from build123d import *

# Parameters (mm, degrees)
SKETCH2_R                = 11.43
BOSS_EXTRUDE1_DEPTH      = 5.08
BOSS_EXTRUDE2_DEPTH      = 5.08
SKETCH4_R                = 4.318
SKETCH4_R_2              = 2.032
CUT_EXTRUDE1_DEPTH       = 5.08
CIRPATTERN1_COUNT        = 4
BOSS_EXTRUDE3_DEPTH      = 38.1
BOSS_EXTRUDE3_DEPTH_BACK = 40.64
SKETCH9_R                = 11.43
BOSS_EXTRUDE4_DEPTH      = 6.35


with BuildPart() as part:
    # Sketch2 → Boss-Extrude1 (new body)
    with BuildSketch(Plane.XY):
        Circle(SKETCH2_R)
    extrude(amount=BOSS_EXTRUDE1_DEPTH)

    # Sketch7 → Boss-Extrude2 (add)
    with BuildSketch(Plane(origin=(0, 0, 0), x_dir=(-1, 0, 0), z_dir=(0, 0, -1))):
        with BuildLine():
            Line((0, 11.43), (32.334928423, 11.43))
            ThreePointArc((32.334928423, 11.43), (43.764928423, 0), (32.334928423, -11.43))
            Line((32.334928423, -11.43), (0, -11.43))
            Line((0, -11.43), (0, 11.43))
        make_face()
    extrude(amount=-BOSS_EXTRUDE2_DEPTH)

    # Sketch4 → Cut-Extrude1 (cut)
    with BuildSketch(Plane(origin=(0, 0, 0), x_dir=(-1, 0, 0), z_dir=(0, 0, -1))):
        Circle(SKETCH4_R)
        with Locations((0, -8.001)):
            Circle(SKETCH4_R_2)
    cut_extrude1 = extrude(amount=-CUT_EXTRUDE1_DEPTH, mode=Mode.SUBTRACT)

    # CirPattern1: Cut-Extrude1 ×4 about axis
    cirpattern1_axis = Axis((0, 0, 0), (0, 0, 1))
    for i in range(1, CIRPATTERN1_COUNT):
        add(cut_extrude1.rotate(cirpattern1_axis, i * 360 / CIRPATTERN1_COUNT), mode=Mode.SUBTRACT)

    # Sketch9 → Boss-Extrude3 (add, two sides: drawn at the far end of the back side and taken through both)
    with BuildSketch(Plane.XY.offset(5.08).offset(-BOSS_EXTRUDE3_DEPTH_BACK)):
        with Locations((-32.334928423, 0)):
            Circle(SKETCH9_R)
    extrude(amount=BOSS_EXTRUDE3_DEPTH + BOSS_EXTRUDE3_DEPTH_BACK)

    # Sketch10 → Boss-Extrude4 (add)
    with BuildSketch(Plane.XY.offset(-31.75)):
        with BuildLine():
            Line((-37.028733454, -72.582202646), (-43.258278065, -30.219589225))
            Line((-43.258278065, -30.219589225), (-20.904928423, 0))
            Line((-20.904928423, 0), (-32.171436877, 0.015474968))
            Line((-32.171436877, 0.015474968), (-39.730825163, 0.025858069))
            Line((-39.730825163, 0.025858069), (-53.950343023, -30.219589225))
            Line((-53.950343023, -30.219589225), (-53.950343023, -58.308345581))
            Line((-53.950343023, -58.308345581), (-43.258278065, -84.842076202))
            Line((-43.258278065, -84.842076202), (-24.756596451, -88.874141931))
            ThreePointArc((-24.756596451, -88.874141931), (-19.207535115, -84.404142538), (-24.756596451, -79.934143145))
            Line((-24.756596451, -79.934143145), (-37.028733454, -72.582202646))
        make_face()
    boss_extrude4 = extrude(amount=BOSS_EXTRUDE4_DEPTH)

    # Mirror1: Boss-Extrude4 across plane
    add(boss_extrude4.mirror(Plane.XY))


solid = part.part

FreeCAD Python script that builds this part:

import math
import FreeCAD as App
import Part
import Sketcher
Q = App.Units.Quantity

doc = App.newDocument("Part")
body = doc.addObject("PartDesign::Body", "Body")

sketch1 = body.newObject("Sketcher::SketchObject", "Sketch")
sketch1.AttachmentSupport = (doc.getObject("XY_Plane"), [""])
sketch1.MapMode = "FlatFace"
sketch1.addGeometry(Part.Circle(App.Vector(0, 0, 0), App.Vector(0, 0, 1), 11.43), False)
sketch1.addConstraint([
    Sketcher.Constraint("Coincident", 0, 3, -1, 1),
    Sketcher.Constraint("Diameter", 0, Q("0.9 in")),
])
pad1 = body.newObject("PartDesign::Pad", "Pad")
pad1.Profile = sketch1
pad1.Length = Q("0.2 in")

sketch2 = body.newObject("Sketcher::SketchObject", "Sketch001")
sketch2.AttachmentSupport = (doc.getObject("XY_Plane"), [""])
sketch2.MapMode = "FlatFace"
sketch2.addGeometry([
    Part.LineSegment(App.Vector(-32.334928, 11.43, 0), App.Vector(0, 11.43, 0)),
    Part.LineSegment(App.Vector(0, 11.43, 0), App.Vector(0, -11.43, 0)),
    Part.LineSegment(App.Vector(0, -11.43, 0), App.Vector(-32.334928, -11.43, 0)),
    Part.ArcOfCircle(Part.Circle(App.Vector(-32.334928, 0, 0), App.Vector(0, 0, 1), 11.43), math.radians(90), math.radians(270)),
], False)
sketch2.addConstraint([
    Sketcher.Constraint("Coincident", 0, 2, 1, 1),
    Sketcher.Constraint("Coincident", 1, 2, 2, 1),
    Sketcher.Constraint("Tangent", 2, 2, 3, 2),
    Sketcher.Constraint("Tangent", 3, 1, 0, 1),
    Sketcher.Constraint("Horizontal", 0),
    Sketcher.Constraint("Vertical", 1),
    Sketcher.Constraint("Horizontal", 2),
    Sketcher.Constraint("Symmetric", 0, 2, 1, 2, -1, 1),
    Sketcher.Constraint("Radius", 3, Q("0.45 in")),
    Sketcher.Constraint("DistanceX", 0, 1, 0, 2, 32.334928),
])
pad2 = body.newObject("PartDesign::Pad", "Pad001")
pad2.Profile = sketch2
pad2.Length = Q("0.2 in")

sketch3 = body.newObject("Sketcher::SketchObject", "Sketch002")
sketch3.AttachmentSupport = (doc.getObject("XY_Plane"), [""])
sketch3.MapMode = "FlatFace"
sketch3.addGeometry([
    Part.Circle(App.Vector(0, 0, 0), App.Vector(0, 0, 1), 4.318),
    Part.Circle(App.Vector(0, -8.001, 0), App.Vector(0, 0, 1), 2.032),
], False)
sketch3.addConstraint([
    Sketcher.Constraint("Coincident", 0, 3, -1, 1),
    Sketcher.Constraint("PointOnObject", 1, 3, -2),
    Sketcher.Constraint("Diameter", 0, Q("0.34 in")),
    Sketcher.Constraint("Diameter", 1, Q("0.16 in")),
    Sketcher.Constraint("DistanceY", 1, 3, -1, 1, Q("0.315 in")),
])
pocket1 = body.newObject("PartDesign::Pocket", "Pocket")
pocket1.Profile = sketch3
pocket1.Length = Q("0.2 in")
pocket1.Reversed = True
doc.recompute()

polarpattern = body.newObject("PartDesign::PolarPattern", "PolarPattern")
polarpattern.Originals = [pocket1]
polarpattern.Axis = (doc.getObject("Z_Axis"), [""])
polarpattern.Angle = 360
polarpattern.Occurrences = 4
body.Tip = polarpattern

sketch4 = body.newObject("Sketcher::SketchObject", "Sketch003")
sketch4.AttachmentSupport = (doc.getObject("XY_Plane"), [""])
sketch4.MapMode = "FlatFace"
sketch4.AttachmentOffset = App.Placement(App.Vector(0, 0, 0.2 * 25.4), App.Rotation())
sketch4.addGeometry(Part.Circle(App.Vector(-32.334928, 0, 0), App.Vector(0, 0, 1), 11.43), False)
sketch4.addConstraint([
    Sketcher.Constraint("PointOnObject", 0, 3, -1),
    Sketcher.Constraint("Diameter", 0, Q("0.9 in")),
    Sketcher.Constraint("DistanceX", 0, 3, -1, 1, 32.334928),
])
pad3 = body.newObject("PartDesign::Pad", "Pad002")
pad3.Profile = sketch4
pad3.Type = "TwoLengths"
pad3.Length = Q("1.5 in")
pad3.Length2 = Q("1.6 in")

sketch5 = body.newObject("Sketcher::SketchObject", "Sketch004")
sketch5.AttachmentSupport = (doc.getObject("XY_Plane"), [""])
sketch5.MapMode = "FlatFace"
sketch5.AttachmentOffset = App.Placement(App.Vector(0, 0, -1.25 * 25.4), App.Rotation())
sketch5.addGeometry([
    Part.LineSegment(App.Vector(-37.028733, -72.582203, 0), App.Vector(-43.258278, -30.219589, 0)),
    Part.LineSegment(App.Vector(-43.258278, -30.219589, 0), App.Vector(-20.904928, 0, 0)),
    Part.LineSegment(App.Vector(-20.904928, 0, 0), App.Vector(-32.171437, 0.015475, 0)),
    Part.LineSegment(App.Vector(-32.171437, 0.015475, 0), App.Vector(-39.730825, 0.025858, 0)),
    Part.LineSegment(App.Vector(-39.730825, 0.025858, 0), App.Vector(-53.950343, -30.219589, 0)),
    Part.LineSegment(App.Vector(-53.950343, -30.219589, 0), App.Vector(-53.950343, -58.308346, 0)),
    Part.LineSegment(App.Vector(-53.950343, -58.308346, 0), App.Vector(-43.258278, -84.842076, 0)),
    Part.LineSegment(App.Vector(-43.258278, -84.842076, 0), App.Vector(-24.756596, -88.874142, 0)),
    Part.ArcOfCircle(Part.Circle(App.Vector(-23.782451, -84.404143, 0), App.Vector(0, 0, 1), 4.574916), math.radians(-102.294226), math.radians(102.294226)),
    Part.LineSegment(App.Vector(-24.756596, -79.934143, 0), App.Vector(-37.028733, -72.582203, 0)),
], False)
sketch5.addConstraint([
    Sketcher.Constraint("Coincident", 0, 2, 1, 1),
    Sketcher.Constraint("Coincident", 1, 2, 2, 1),
    Sketcher.Constraint("Coincident", 2, 2, 3, 1),
    Sketcher.Constraint("Coincident", 3, 2, 4, 1),
    Sketcher.Constraint("Coincident", 4, 2, 5, 1),
    Sketcher.Constraint("Coincident", 5, 2, 6, 1),
    Sketcher.Constraint("Coincident", 6, 2, 7, 1),
    Sketcher.Constraint("Tangent", 7, 2, 8, 1),
    Sketcher.Constraint("Coincident", 8, 2, 9, 1),
    Sketcher.Constraint("Coincident", 9, 2, 0, 1),
    Sketcher.Constraint("Vertical", 5),
    Sketcher.Constraint("PointOnObject", 1, 2, -1),
    Sketcher.Constraint("Parallel", 2, 3),
    Sketcher.Constraint("Horizontal", 0, 2, 4, 2),
    Sketcher.Constraint("Vertical", 0, 2, 6, 2),
    Sketcher.Constraint("Vertical", 7, 2, 8, 2),
    Sketcher.Constraint("Radius", 8, 4.574916),
    Sketcher.Constraint("Distance", 0, 42.8182),
    Sketcher.Constraint("DistanceY", 8, 3, 3, 2, 84.430001),
    Sketcher.Constraint("DistanceY", 7, 2, 8, 3, 4.469999),
    Sketcher.Constraint("Distance", 2, 11.266519),
    Sketcher.Constraint("Distance", 7, 18.935939),
    Sketcher.Constraint("DistanceY", 5, 2, 5, 1, 28.088756),
    Sketcher.Constraint("DistanceX", 8, 3, -1, 1, 23.782451),
    Sketcher.Constraint("DistanceY", 0, 2, -1, 1, 30.219589),
    Sketcher.Constraint("DistanceX", 1, 2, -1, 1, 20.904928),
    Sketcher.Constraint("DistanceY", -1, 1, 3, 2, 0.025858),
    Sketcher.Constraint("DistanceX", 3, 2, 2, 2, 7.559388),
    Sketcher.Constraint("DistanceY", 8, 2, 9, 2, 7.35194),
    Sketcher.Constraint("DistanceX", 5, 2, 9, 2, 16.92161),
])
pad4 = body.newObject("PartDesign::Pad", "Pad003")
pad4.Profile = sketch5
pad4.Length = Q("0.25 in")
doc.recompute()

mirrored = body.newObject("PartDesign::Mirrored", "Mirrored")
mirrored.Originals = [pad4]
mirrored.MirrorPlane = (doc.getObject("XY_Plane"), [""])
body.Tip = mirrored

doc.recompute()
